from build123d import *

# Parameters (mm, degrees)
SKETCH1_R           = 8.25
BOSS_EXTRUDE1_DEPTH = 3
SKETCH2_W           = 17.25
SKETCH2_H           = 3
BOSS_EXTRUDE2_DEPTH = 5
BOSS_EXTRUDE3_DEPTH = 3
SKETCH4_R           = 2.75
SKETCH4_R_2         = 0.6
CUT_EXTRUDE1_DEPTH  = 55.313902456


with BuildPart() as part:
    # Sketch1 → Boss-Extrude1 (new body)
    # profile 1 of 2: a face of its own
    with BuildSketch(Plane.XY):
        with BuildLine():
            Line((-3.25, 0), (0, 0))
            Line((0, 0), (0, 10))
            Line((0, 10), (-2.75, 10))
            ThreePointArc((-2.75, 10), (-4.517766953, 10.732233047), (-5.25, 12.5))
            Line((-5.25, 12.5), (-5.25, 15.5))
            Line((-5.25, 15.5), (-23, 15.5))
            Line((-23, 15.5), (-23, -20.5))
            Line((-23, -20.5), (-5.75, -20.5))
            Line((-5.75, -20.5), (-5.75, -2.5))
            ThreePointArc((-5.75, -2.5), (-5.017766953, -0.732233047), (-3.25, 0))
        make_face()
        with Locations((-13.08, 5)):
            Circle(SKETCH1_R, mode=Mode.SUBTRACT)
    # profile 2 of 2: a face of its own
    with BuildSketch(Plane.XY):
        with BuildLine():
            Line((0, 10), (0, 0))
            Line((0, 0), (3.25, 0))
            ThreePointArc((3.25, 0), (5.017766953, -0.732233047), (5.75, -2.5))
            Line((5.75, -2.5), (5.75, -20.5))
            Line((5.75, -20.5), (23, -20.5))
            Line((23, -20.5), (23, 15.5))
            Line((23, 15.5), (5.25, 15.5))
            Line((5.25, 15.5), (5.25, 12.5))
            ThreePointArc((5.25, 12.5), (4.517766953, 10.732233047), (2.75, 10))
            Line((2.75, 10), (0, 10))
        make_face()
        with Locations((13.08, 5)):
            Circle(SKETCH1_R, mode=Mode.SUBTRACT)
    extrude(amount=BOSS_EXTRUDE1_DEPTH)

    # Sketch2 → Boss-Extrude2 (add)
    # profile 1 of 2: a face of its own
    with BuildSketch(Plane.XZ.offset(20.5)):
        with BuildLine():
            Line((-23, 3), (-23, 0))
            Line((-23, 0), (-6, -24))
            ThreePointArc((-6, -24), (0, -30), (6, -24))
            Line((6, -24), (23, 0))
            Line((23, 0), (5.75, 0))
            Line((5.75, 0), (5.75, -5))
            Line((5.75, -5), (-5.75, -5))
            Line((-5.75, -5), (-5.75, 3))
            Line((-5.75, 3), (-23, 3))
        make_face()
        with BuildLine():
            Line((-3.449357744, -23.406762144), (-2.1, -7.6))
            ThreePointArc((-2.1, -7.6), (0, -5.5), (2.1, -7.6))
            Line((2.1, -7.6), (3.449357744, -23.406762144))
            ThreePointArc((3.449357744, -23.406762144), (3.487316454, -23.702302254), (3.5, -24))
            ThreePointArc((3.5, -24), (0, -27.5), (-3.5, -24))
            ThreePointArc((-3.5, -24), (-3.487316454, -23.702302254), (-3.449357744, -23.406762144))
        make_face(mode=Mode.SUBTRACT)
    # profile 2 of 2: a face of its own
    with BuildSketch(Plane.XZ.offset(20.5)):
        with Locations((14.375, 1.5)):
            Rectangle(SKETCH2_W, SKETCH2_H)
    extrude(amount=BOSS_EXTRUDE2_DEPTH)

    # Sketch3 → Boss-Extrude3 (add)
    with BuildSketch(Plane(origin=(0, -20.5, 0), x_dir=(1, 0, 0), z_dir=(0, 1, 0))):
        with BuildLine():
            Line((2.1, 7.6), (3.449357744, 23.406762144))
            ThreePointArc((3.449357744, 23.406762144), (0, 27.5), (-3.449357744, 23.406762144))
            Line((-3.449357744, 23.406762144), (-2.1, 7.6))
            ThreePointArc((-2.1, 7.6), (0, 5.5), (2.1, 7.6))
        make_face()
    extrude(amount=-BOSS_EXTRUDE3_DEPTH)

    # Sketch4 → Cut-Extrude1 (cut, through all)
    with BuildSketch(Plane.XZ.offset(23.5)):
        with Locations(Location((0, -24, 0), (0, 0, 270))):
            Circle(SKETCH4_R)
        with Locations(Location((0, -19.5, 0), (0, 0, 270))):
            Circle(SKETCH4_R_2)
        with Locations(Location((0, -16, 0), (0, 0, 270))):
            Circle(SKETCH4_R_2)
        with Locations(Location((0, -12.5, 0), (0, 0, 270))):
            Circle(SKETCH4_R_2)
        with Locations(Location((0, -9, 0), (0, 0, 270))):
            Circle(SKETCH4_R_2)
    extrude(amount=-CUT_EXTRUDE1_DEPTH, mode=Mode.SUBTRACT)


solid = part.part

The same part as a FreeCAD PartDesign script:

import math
import FreeCAD as App
import Part
import Sketcher

V = App.Vector

doc = App.newDocument("Part")
body = doc.addObject("PartDesign::Body", "Body")

sketch1 = doc.addObject("Sketcher::SketchObject", "Sketch")
body.addObject(sketch1)
sketch1.AttachmentSupport = (doc.XY_Plane, [""])
sketch1.MapMode = "FlatFace"
sketch1.addGeometry(Part.LineSegment(V(-3.2, 0, 0), V(3.2, 0, 0)), False)
sketch1.addGeometry(Part.ArcOfCircle(Part.Circle(V(3.2, -2.5, 0), V(0, 0, 1), 2.5), math.radians(0), math.radians(90)), False)
sketch1.addGeometry(Part.LineSegment(V(5.8, -2.5, 0), V(5.8, -20.5, 0)), False)
sketch1.addGeometry(Part.LineSegment(V(5.8, -20.5, 0), V(23, -20.5, 0)), False)
sketch1.addGeometry(Part.LineSegment(V(23, -20.5, 0), V(23, 15.5, 0)), False)
sketch1.addGeometry(Part.LineSegment(V(23, 15.5, 0), V(5.2, 15.5, 0)), False)
sketch1.addGeometry(Part.LineSegment(V(5.2, 15.5, 0), V(5.2, 12.5, 0)), False)
sketch1.addGeometry(Part.ArcOfCircle(Part.Circle(V(2.8, 12.5, 0), V(0, 0, 1), 2.5), math.radians(-90), math.radians(0)), False)
sketch1.addGeometry(Part.LineSegment(V(2.8, 10, 0), V(-2.8, 10, 0)), False)
sketch1.addGeometry(Part.ArcOfCircle(Part.Circle(V(-2.8, 12.5, 0), V(0, 0, 1), 2.5), math.radians(180), math.radians(270)), False)
sketch1.addGeometry(Part.LineSegment(V(-5.2, 12.5, 0), V(-5.2, 15.5, 0)), False)
sketch1.addGeometry(Part.LineSegment(V(-5.2, 15.5, 0), V(-23, 15.5, 0)), False)
sketch1.addGeometry(Part.LineSegment(V(-23, 15.5, 0), V(-23, -20.5, 0)), False)
sketch1.addGeometry(Part.LineSegment(V(-23, -20.5, 0), V(-5.8, -20.5, 0)), False)
sketch1.addGeometry(Part.LineSegment(V(-5.8, -20.5, 0), V(-5.8, -2.5, 0)), False)
sketch1.addGeometry(Part.ArcOfCircle(Part.Circle(V(-3.2, -2.5, 0), V(0, 0, 1), 2.5), math.radians(90), math.radians(180)), False)
sketch1.addGeometry(Part.Circle(V(-13.1, 5, 0), V(0, 0, 1), 8.2), False)
sketch1.addGeometry(Part.Circle(V(13.1, 5, 0), V(0, 0, 1), 8.2), False)
sketch1.addConstraint(Sketcher.Constraint("Tangent", 0, 2, 1, 2))
sketch1.addConstraint(Sketcher.Constraint("Tangent", 1, 1, 2, 1))
sketch1.addConstraint(Sketcher.Constraint("Coincident", 2, 2, 3, 1))
sketch1.addConstraint(Sketcher.Constraint("Coincident", 3, 2, 4, 1))
sketch1.addConstraint(Sketcher.Constraint("Coincident", 4, 2, 5, 1))
sketch1.addConstraint(Sketcher.Constraint("Coincident", 5, 2, 6, 1))
sketch1.addConstraint(Sketcher.Constraint("Tangent", 6, 2, 7, 2))
sketch1.addConstraint(Sketcher.Constraint("Tangent", 7, 1, 8, 1))
sketch1.addConstraint(Sketcher.Constraint("Tangent", 8, 2, 9, 2))
sketch1.addConstraint(Sketcher.Constraint("Tangent", 9, 1, 10, 1))
sketch1.addConstraint(Sketcher.Constraint("Coincident", 10, 2, 11, 1))
sketch1.addConstraint(Sketcher.Constraint("Coincident", 11, 2, 12, 1))
sketch1.addConstraint(Sketcher.Constraint("Coincident", 12, 2, 13, 1))
sketch1.addConstraint(Sketcher.Constraint("Coincident", 13, 2, 14, 1))
sketch1.addConstraint(Sketcher.Constraint("Tangent", 14, 2, 15, 2))
sketch1.addConstraint(Sketcher.Constraint("Tangent", 15, 1, 0, 1))
sketch1.addConstraint(Sketcher.Constraint("Horizontal", 0))
sketch1.addConstraint(Sketcher.Constraint("Vertical", 2))
sketch1.addConstraint(Sketcher.Constraint("Horizontal", 3))
sketch1.addConstraint(Sketcher.Constraint("Vertical", 4))
sketch1.addConstraint(Sketcher.Constraint("Horizontal", 5))
sketch1.addConstraint(Sketcher.Constraint("Vertical", 6))
sketch1.addConstraint(Sketcher.Constraint("Horizontal", 8))
sketch1.addConstraint(Sketcher.Constraint("Vertical", 10))
sketch1.addConstraint(Sketcher.Constraint("Horizontal", 11))
sketch1.addConstraint(Sketcher.Constraint("Vertical", 12))
sketch1.addConstraint(Sketcher.Constraint("Horizontal", 13))
sketch1.addConstraint(Sketcher.Constraint("Vertical", 14))
sketch1.addConstraint(Sketcher.Constraint("Equal", 1, 7))
sketch1.addConstraint(Sketcher.Constraint("Equal", 7, 9))
sketch1.addConstraint(Sketcher.Constraint("Equal", 9, 15))
sketch1.addConstraint(Sketcher.Constraint("Equal", 16, 17))
sketch1.addConstraint(Sketcher.Constraint("Symmetric", 0, 2, 15, 1, -1, 1))
sketch1.addConstraint(Sketcher.Constraint("Symmetric", 16, 3, 17, 3, -2))
sketch1.addConstraint(Sketcher.Constraint("Symmetric", 5, 2, 10, 2, -2))
sketch1.addConstraint(Sketcher.Constraint("Symmetric", 3, 2, 12, 2, -2))
sketch1.addConstraint(Sketcher.Constraint("Diameter", 16, 16.5))
sketch1.addConstraint(Sketcher.Constraint("Radius", 1, 2.5))
sketch1.addConstraint(Sketcher.Constraint("DistanceY", 2, 2, 2, 1, 18.0))
sketch1.addConstraint(Sketcher.Constraint("DistanceY", 4, 1, 4, 2, 36.0))
sketch1.addConstraint(Sketcher.Constraint("DistanceY", 6, 2, 6, 1, 3.0))
sketch1.addConstraint(Sketcher.Constraint("DistanceX", 0, 1, 0, 2, 6.5))
sketch1.addConstraint(Sketcher.Constraint("DistanceX", 8, 2, 8, 1, 5.5))
sketch1.addConstraint(Sketcher.Constraint("DistanceY", -1, 1, 16, 3, 5.0))
sketch1.addConstraint(Sketcher.Constraint("DistanceX", -1, 1, 3, 2, 23.0))
sketch1.addConstraint(Sketcher.Constraint("DistanceX", 16, 3, -1, 1, 13.08))
pad1 = doc.addObject("PartDesign::Pad", "Pad")
body.addObject(pad1)
pad1.Profile = sketch1
pad1.Length = 3

sketch2 = doc.addObject("Sketcher::SketchObject", "Sketch001")
body.addObject(sketch2)
sketch2.AttachmentSupport = (doc.XZ_Plane, [""])
sketch2.MapMode = "FlatFace"
sketch2.AttachmentOffset = App.Placement(V(0, 0, 20.5), App.Rotation())
sketch2.addGeometry(Part.LineSegment(V(-23, 3, 0), V(-23, 0, 0)), False)
sketch2.addGeometry(Part.LineSegment(V(-23, 0, 0), V(-6, -24, 0)), False)
sketch2.addGeometry(Part.ArcOfCircle(Part.Circle(V(0, -24, 0), V(0, 0, 1), 6), math.radians(180), math.radians(360)), False)
sketch2.addGeometry(Part.LineSegment(V(6, -24, 0), V(23, 0, 0)), False)
sketch2.addGeometry(Part.LineSegment(V(23, 0, 0), V(23, 3, 0)), False)
sketch2.addGeometry(Part.LineSegment(V(23, 3, 0), V(5.8, 3, 0)), False)
sketch2.addGeometry(Part.LineSegment(V(5.8, 3, 0), V(5.8, -5, 0)), False)
sketch2.addGeometry(Part.LineSegment(V(5.8, -5, 0), V(-5.8, -5, 0)), False)
sketch2.addGeometry(Part.LineSegment(V(-5.8, -5, 0), V(-5.8, 3, 0)), False)
sketch2.addGeometry(Part.LineSegment(V(-5.8, 3, 0), V(-23, 3, 0)), False)
sketch2.addGeometry(Part.ArcOfCircle(Part.Circle(V(0, -24, 0), V(0, 0, 1), 3.5), math.radians(170.24), math.radians(180)), False)
sketch2.addGeometry(Part.LineSegment(V(-3.4, -23.4, 0), V(-2.1, -7.6, 0)), False)
sketch2.addGeometry(Part.ArcOfCircle(Part.Circle(V(0, -7.6, 0), V(0, 0, 1), 2.1), math.radians(0), math.radians(180)), False)
sketch2.addGeometry(Part.LineSegment(V(2.1, -7.6, 0), V(3.4, -23.4, 0)), False)
sketch2.addGeometry(Part.ArcOfCircle(Part.Circle(V(0, -24, 0), V(0, 0, 1), 3.5), math.radians(0), math.radians(9.76)), False)
sketch2.addGeometry(Part.ArcOfCircle(Part.Circle(V(0, -24, 0), V(0, 0, 1), 3.5), math.radians(180), math.radians(360)), False)
sketch2.addConstraint(Sketcher.Constraint("Coincident", 0, 2, 1, 1))
sketch2.addConstraint(Sketcher.Constraint("Coincident", 1, 2, 2, 1))
sketch2.addConstraint(Sketcher.Constraint("Coincident", 2, 2, 3, 1))
sketch2.addConstraint(Sketcher.Constraint("Coincident", 3, 2, 4, 1))
sketch2.addConstraint(Sketcher.Constraint("Coincident", 4, 2, 5, 1))
sketch2.addConstraint(Sketcher.Constraint("Coincident", 5, 2, 6, 1))
sketch2.addConstraint(Sketcher.Constraint("Coincident", 6, 2, 7, 1))
sketch2.addConstraint(Sketcher.Constraint("Coincident", 7, 2, 8, 1))
sketch2.addConstraint(Sketcher.Constraint("Coincident", 8, 2, 9, 1))
sketch2.addConstraint(Sketcher.Constraint("Coincident", 9, 2, 0, 1))
sketch2.addConstraint(Sketcher.Constraint("Coincident", 10, 1, 11, 1))
sketch2.addConstraint(Sketcher.Constraint("Coincident", 11, 2, 12, 2))
sketch2.addConstraint(Sketcher.Constraint("Coincident", 12, 1, 13, 1))
sketch2.addConstraint(Sketcher.Constraint("Coincident", 13, 2, 14, 2))
sketch2.addConstraint(Sketcher.Constraint("Tangent", 14, 1, 15, 2))
sketch2.addConstraint(Sketcher.Constraint("Tangent", 15, 1, 10, 2))
sketch2.addConstraint(Sketcher.Constraint("Vertical", 0))
sketch2.addConstraint(Sketcher.Constraint("Vertical", 4))
sketch2.addConstraint(Sketcher.Constraint("Horizontal", 5))
sketch2.addConstraint(Sketcher.Constraint("Vertical", 6))
sketch2.addConstraint(Sketcher.Constraint("Horizontal", 7))
sketch2.addConstraint(Sketcher.Constraint("Vertical", 8))
sketch2.addConstraint(Sketcher.Constraint("Horizontal", 9))
sketch2.addConstraint(Sketcher.Constraint("Coincident", 10, 3, 2, 3))
sketch2.addConstraint(Sketcher.Constraint("Equal", 10, 14))
sketch2.addConstraint(Sketcher.Constraint("Equal", 14, 15))
sketch2.addConstraint(Sketcher.Constraint("Symmetric", 0, 2, 3, 2, -1, 1))
sketch2.addConstraint(Sketcher.Constraint("Symmetric", 1, 2, 2, 2, -2))
sketch2.addConstraint(Sketcher.Constraint("Symmetric", 5, 2, 8, 2, -2))
sketch2.addConstraint(Sketcher.Constraint("Symmetric", 11, 2, 12, 1, -2))
sketch2.addConstraint(Sketcher.Constraint("PointOnObject", 0, 2, -1))
sketch2.addConstraint(Sketcher.Constraint("Horizontal", 15, 3, 1, 2))
sketch2.addConstraint(Sketcher.Constraint("Horizontal", 12, 3, 11, 2))
sketch2.addConstraint(Sketcher.Constraint("Horizontal", 10, 1, 13, 2))
sketch2.addConstraint(Sketcher.Constraint("Horizontal", 2, 2, 14, 1))
sketch2.addConstraint(Sketcher.Constraint("Horizontal", 14, 1, 15, 1))
sketch2.addConstraint(Sketcher.Constraint("Radius", 2, 6.0))
sketch2.addConstraint(Sketcher.Constraint("Radius", 10, 3.5))
sketch2.addConstraint(Sketcher.Constraint("Radius", 12, 2.1))
sketch2.addConstraint(Sketcher.Constraint("DistanceY", 0, 2, 0, 1, 3.0))
sketch2.addConstraint(Sketcher.Constraint("DistanceY", 6, 2, 6, 1, 8.0))
sketch2.addConstraint(Sketcher.Constraint("DistanceX", 7, 2, 7, 1, 11.5))
sketch2.addConstraint(Sketcher.Constraint("DistanceY", 2, 3, -1, 1, 24.0))
sketch2.addConstraint(Sketcher.Constraint("DistanceX", 0, 2, -1, 1, 23.0))
sketch2.addConstraint(Sketcher.Constraint("DistanceY", 12, 3, -1, 1, 7.6))
sketch2.addConstraint(Sketcher.Constraint("Distance", 11, 15.864252))
pad2 = doc.addObject("PartDesign::Pad", "Pad001")
body.addObject(pad2)
pad2.Profile = sketch2
pad2.Length = 5

sketch3 = doc.addObject("Sketcher::SketchObject", "Sketch002")
body.addObject(sketch3)
sketch3.AttachmentSupport = (doc.XZ_Plane, [""])
sketch3.MapMode = "FlatFace"
sketch3.AttachmentOffset = App.Placement(V(0, 0, 20.5), App.Rotation())
sketch3.addGeometry(Part.LineSegment(V(2.1, -7.6, 0), V(3.4, -23.4, 0)), False)
sketch3.addGeometry(Part.ArcOfCircle(Part.Circle(V(0, -24, 0), V(0, 0, 1), 3.5), math.radians(170), math.radians(370)), False)
sketch3.addGeometry(Part.LineSegment(V(-3.4, -23.4, 0), V(-2.1, -7.6, 0)), False)
sketch3.addGeometry(Part.ArcOfCircle(Part.Circle(V(0, -7.6, 0), V(0, 0, 1), 2.1), math.radians(0), math.radians(180)), False)
sketch3.addConstraint(Sketcher.Constraint("Coincident", 0, 2, 1, 2))
sketch3.addConstraint(Sketcher.Constraint("Coincident", 1, 1, 2, 1))
sketch3.addConstraint(Sketcher.Constraint("Coincident", 2, 2, 3, 2))
sketch3.addConstraint(Sketcher.Constraint("Coincident", 3, 1, 0, 1))
sketch3.addConstraint(Sketcher.Constraint("Symmetric", 0, 2, 1, 1, -2))
sketch3.addConstraint(Sketcher.Constraint("Symmetric", 2, 2, 3, 1, -2))
sketch3.addConstraint(Sketcher.Constraint("Horizontal", 3, 3, 2, 2))
sketch3.addConstraint(Sketcher.Constraint("Radius", 1, 3.5))
sketch3.addConstraint(Sketcher.Constraint("Radius", 3, 2.1))
sketch3.addConstraint(Sketcher.Constraint("DistanceY", 1, 3, -1, 1, 24.0))
sketch3.addConstraint(Sketcher.Constraint("DistanceY", 3, 3, -1, 1, 7.6))
sketch3.addConstraint(Sketcher.Constraint("Distance", 0, 15.864252))
pad3 = doc.addObject("PartDesign::Pad", "Pad002")
body.addObject(pad3)
pad3.Profile = sketch3
pad3.Length = 3

sketch4 = doc.addObject("Sketcher::SketchObject", "Sketch003")
body.addObject(sketch4)
sketch4.AttachmentSupport = (doc.XZ_Plane, [""])
sketch4.MapMode = "FlatFace"
sketch4.AttachmentOffset = App.Placement(V(0, 0, 23.5), App.Rotation())
sketch4.addGeometry(Part.Circle(V(0, -24, 0), V(0, 0, 1), 2.8), False)
sketch4.addGeometry(Part.Circle(V(0, -19.5, 0), V(0, 0, 1), 0.6), False)
sketch4.addGeometry(Part.Circle(V(0, -16, 0), V(0, 0, 1), 0.6), False)
sketch4.addGeometry(Part.Circle(V(0, -12.5, 0), V(0, 0, 1), 0.6), False)
sketch4.addGeometry(Part.Circle(V(0, -9, 0), V(0, 0, 1), 0.6), False)
sketch4.addConstraint(Sketcher.Constraint("Equal", 1, 2))
sketch4.addConstraint(Sketcher.Constraint("Equal", 2, 3))
sketch4.addConstraint(Sketcher.Constraint("Equal", 3, 4))
sketch4.addConstraint(Sketcher.Constraint("PointOnObject", 0, 3, -2))
sketch4.addConstraint(Sketcher.Constraint("PointOnObject", 1, 3, -2))
sketch4.addConstraint(Sketcher.Constraint("PointOnObject", 2, 3, -2))
sketch4.addConstraint(Sketcher.Constraint("PointOnObject", 3, 3, -2))
sketch4.addConstraint(Sketcher.Constraint("PointOnObject", 4, 3, -2))
sketch4.addConstraint(Sketcher.Constraint("Diameter", 0, 5.5))
sketch4.addConstraint(Sketcher.Constraint("Diameter", 1, 1.2))
sketch4.addConstraint(Sketcher.Constraint("DistanceY", 0, 3, -1, 1, 24.0))
sketch4.addConstraint(Sketcher.Constraint("DistanceY", 2, 3, -1, 1, 16.0))
sketch4.addConstraint(Sketcher.Constraint("DistanceY", 4, 3, -1, 1, 9.0))
sketch4.addConstraint(Sketcher.Constraint("DistanceY", 1, 3, 3, 3, 7.0))
sketch4.addConstraint(Sketcher.Constraint("DistanceY", 1, 3, -1, 1, 19.5))
pocket1 = doc.addObject("PartDesign::Pocket", "Pocket")
body.addObject(pocket1)
pocket1.Profile = sketch4
pocket1.Type = "ThroughAll"

doc.recompute()
